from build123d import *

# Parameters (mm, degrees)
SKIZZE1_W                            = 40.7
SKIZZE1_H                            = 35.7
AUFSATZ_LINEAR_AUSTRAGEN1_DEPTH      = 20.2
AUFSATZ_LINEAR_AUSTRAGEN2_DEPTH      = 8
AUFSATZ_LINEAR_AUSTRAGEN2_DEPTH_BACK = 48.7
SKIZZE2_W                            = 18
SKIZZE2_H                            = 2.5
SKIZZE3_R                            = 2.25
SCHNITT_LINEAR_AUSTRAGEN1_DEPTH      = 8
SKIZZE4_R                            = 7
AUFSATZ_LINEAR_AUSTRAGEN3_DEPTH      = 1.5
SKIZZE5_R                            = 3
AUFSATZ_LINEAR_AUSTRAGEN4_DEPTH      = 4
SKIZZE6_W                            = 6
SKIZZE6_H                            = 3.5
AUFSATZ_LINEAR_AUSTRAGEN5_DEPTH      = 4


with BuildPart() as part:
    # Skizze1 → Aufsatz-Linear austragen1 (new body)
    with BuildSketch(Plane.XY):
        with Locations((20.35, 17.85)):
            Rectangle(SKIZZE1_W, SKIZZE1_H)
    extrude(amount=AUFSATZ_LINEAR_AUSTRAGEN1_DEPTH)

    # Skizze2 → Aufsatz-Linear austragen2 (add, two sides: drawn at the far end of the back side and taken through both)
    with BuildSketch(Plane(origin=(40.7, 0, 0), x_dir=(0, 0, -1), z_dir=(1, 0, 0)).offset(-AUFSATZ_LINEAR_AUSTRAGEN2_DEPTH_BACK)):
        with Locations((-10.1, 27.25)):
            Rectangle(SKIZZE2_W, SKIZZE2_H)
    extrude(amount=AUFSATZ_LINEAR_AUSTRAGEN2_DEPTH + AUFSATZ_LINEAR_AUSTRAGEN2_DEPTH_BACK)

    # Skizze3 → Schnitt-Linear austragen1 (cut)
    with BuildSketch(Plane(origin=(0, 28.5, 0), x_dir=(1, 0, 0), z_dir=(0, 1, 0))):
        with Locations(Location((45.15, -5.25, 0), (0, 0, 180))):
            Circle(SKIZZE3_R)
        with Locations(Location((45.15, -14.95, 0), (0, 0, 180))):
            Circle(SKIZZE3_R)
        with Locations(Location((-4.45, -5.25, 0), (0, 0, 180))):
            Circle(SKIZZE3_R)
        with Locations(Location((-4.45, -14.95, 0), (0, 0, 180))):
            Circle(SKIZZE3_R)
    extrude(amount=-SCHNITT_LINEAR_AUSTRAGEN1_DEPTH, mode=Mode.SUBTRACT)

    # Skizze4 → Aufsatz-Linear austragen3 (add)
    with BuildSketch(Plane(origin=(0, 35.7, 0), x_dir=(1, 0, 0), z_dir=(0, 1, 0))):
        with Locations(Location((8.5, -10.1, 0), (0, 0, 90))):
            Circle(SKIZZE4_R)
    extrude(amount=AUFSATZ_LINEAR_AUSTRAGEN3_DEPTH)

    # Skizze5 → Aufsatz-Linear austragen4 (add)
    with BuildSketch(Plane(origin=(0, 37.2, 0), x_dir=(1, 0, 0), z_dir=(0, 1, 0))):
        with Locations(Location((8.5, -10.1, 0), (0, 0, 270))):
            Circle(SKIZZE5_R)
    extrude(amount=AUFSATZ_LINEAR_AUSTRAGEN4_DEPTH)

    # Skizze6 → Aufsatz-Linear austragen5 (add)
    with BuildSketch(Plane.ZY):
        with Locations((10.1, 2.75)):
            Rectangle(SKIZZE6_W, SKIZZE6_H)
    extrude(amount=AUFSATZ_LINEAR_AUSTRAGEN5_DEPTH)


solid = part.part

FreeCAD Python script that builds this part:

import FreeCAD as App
import Part
import Sketcher


def add_polygon(sketch, points):
    """Adds a closed chain of lines whose ends are joined by coincident constraints."""
    first, n = sketch.GeometryCount, len(points)
    for a, b in zip(points, points[1:] + points[:1]):
        sketch.addGeometry(Part.LineSegment(App.Vector(*a, 0), App.Vector(*b, 0)), False)
    for i in range(n):
        sketch.addConstraint(Sketcher.Constraint("Coincident", first + i, 2, first + (i + 1) % n, 1))

doc = App.newDocument("Part")
params = doc.addObject("Spreadsheet::Sheet", "Params")
for row, (alias, value) in enumerate([
    ("sketch1_width", "40.7 mm"),
    ("sketch1_height", "35.7 mm"),
    ("pad1_length", "20.2 mm"),
    ("sketch2_height", "18 mm"),
    ("sketch2_width", "2.5 mm"),
    ("pad2_length", "8 mm"),
    ("pad2_length2", "48.7 mm"),
    ("sketch3_diameter", "4.5 mm"),
    ("pocket1_length", "8 mm"),
    ("sketch4_diameter", "14 mm"),
    ("pad3_length", "1.5 mm"),
    ("sketch5_diameter", "6 mm"),
    ("pad4_length", "4 mm"),
    ("sketch6_height", "6 mm"),
    ("sketch6_width", "3.5 mm"),
    ("pad5_length", "4 mm"),
], start=1):
    params.set(f"A{row}", alias)
    params.set(f"B{row}", "=" + value)
    params.setAlias(f"B{row}", alias)

body = doc.addObject("PartDesign::Body", "Body")

# Sketch on XY plane
sketch1 = body.newObject("Sketcher::SketchObject", "Sketch")
sketch1.AttachmentSupport = (doc.getObject("XY_Plane"), [""])
sketch1.MapMode = "FlatFace"
add_polygon(sketch1, [(0, 36), (0, 0), (41, 0), (41, 36)])  # lines 0-3
sketch1.addConstraint([
    Sketcher.Constraint("Vertical", 0),
    Sketcher.Constraint("Horizontal", 1),
    Sketcher.Constraint("Vertical", 2),
    Sketcher.Constraint("Horizontal", 3),
    Sketcher.Constraint("Coincident", 0, 2, -1, 1),
    Sketcher.Constraint("DistanceX", 1, 1, 1, 2, 40.7),
    Sketcher.Constraint("DistanceY", 0, 2, 0, 1, 35.7),
])
sketch1.setExpression("Constraints[9]", "Params.sketch1_width")
sketch1.setExpression("Constraints[10]", "Params.sketch1_height")
pad1 = body.newObject("PartDesign::Pad", "Pad")
pad1.Profile = sketch1
pad1.setExpression("Length", "Params.pad1_length")

# Sketch on YZ plane
sketch2 = body.newObject("Sketcher::SketchObject", "Sketch001")
sketch2.AttachmentSupport = (doc.getObject("YZ_Plane"), [""])
sketch2.MapMode = "FlatFace"
sketch2.AttachmentOffset = App.Placement(App.Vector(0, 0, 40.7), App.Rotation())
add_polygon(sketch2, [(28.5, 19.1), (26, 19.1), (26, 1.1), (28.5, 1.1)])  # lines 0-3
sketch2.addConstraint([
    Sketcher.Constraint("Horizontal", 0),
    Sketcher.Constraint("Vertical", 1),
    Sketcher.Constraint("Horizontal", 2),
    Sketcher.Constraint("Vertical", 3),
    Sketcher.Constraint("DistanceY", 1, 2, 1, 1, 18.0),
    Sketcher.Constraint("DistanceX", 0, 2, 0, 1, 2.5),
    Sketcher.Constraint("DistanceX", -1, 1, 0, 2, 26.0),
    Sketcher.Constraint("DistanceY", -1, 1, 0, 2, 19.1),
])
sketch2.setExpression("Constraints[8]", "Params.sketch2_height")
sketch2.setExpression("Constraints[9]", "Params.sketch2_width")
pad2 = body.newObject("PartDesign::Pad", "Pad001")
pad2.Profile = sketch2
pad2.Type = "TwoLengths"
pad2.setExpression("Length", "Params.pad2_length")
pad2.setExpression("Length2", "Params.pad2_length2")

# Sketch on XZ plane
sketch3 = body.newObject("Sketcher::SketchObject", "Sketch002")
sketch3.AttachmentSupport = (doc.getObject("XZ_Plane"), [""])
sketch3.MapMode = "FlatFace"
sketch3.AttachmentOffset = App.Placement(App.Vector(0, 0, -28.5), App.Rotation())
sketch3.addGeometry([
    Part.Circle(App.Vector(45.1, 5.2, 0), App.Vector(0, 0, 1), 2.2),
    Part.Circle(App.Vector(45.1, 14.9, 0), App.Vector(0, 0, 1), 2.2),
    Part.Circle(App.Vector(-4.5, 5.2, 0), App.Vector(0, 0, 1), 2.2),
    Part.Circle(App.Vector(-4.5, 14.9, 0), App.Vector(0, 0, 1), 2.2),
], False)
sketch3.addConstraint([
    Sketcher.Constraint("Equal", 0, 1),
    Sketcher.Constraint("Equal", 1, 2),
    Sketcher.Constraint("Equal", 2, 3),
    Sketcher.Constraint("Horizontal", 0, 3, 2, 3),
    Sketcher.Constraint("Horizontal", 1, 3, 3, 3),
    Sketcher.Constraint("Vertical", 0, 3, 1, 3),
    Sketcher.Constraint("Vertical", 2, 3, 3, 3),
    Sketcher.Constraint("Diameter", 0, 4.5),
    Sketcher.Constraint("DistanceY", 0, 3, 1, 3, 9.7),
    Sketcher.Constraint("DistanceX", 2, 3, 0, 3, 49.6),
    Sketcher.Constraint("DistanceX", -1, 1, 0, 3, 45.15),
    Sketcher.Constraint("DistanceY", -1, 1, 0, 3, 5.25),
])
sketch3.setExpression("Constraints[7]", "Params.sketch3_diameter")
pocket1 = body.newObject("PartDesign::Pocket", "Pocket")
pocket1.Profile = sketch3
pocket1.setExpression("Length", "Params.pocket1_length")
pocket1.Reversed = True

# Sketch on XZ plane
sketch4 = body.newObject("Sketcher::SketchObject", "Sketch003")
sketch4.AttachmentSupport = (doc.getObject("XZ_Plane"), [""])
sketch4.MapMode = "FlatFace"
sketch4.AttachmentOffset = App.Placement(App.Vector(0, 0, -35.7), App.Rotation())
sketch4.addGeometry(Part.Circle(App.Vector(8, 10, 0), App.Vector(0, 0, 1), 7), False)
sketch4.addConstraint([
    Sketcher.Constraint("Diameter", 0, 14.0),
    Sketcher.Constraint("DistanceX", -1, 1, 0, 3, 8.5),
    Sketcher.Constraint("DistanceY", -1, 1, 0, 3, 10.1),
])
sketch4.setExpression("Constraints[0]", "Params.sketch4_diameter")
pad3 = body.newObject("PartDesign::Pad", "Pad002")
pad3.Profile = sketch4
pad3.setExpression("Length", "Params.pad3_length")
pad3.Reversed = True

# Sketch on XZ plane
sketch5 = body.newObject("Sketcher::SketchObject", "Sketch004")
sketch5.AttachmentSupport = (doc.getObject("XZ_Plane"), [""])
sketch5.MapMode = "FlatFace"
sketch5.AttachmentOffset = App.Placement(App.Vector(0, 0, -37.2), App.Rotation())
sketch5.addGeometry(Part.Circle(App.Vector(8.5, 10.1, 0), App.Vector(0, 0, 1), 3), False)
sketch5.addConstraint([
    Sketcher.Constraint("Diameter", 0, 6.0),
    Sketcher.Constraint("DistanceX", -1, 1, 0, 3, 8.5),
    Sketcher.Constraint("DistanceY", -1, 1, 0, 3, 10.1),
])
sketch5.setExpression("Constraints[0]", "Params.sketch5_diameter")
pad4 = body.newObject("PartDesign::Pad", "Pad003")
pad4.Profile = sketch5
pad4.setExpression("Length", "Params.pad4_length")
pad4.Reversed = True

# Sketch on YZ plane
sketch6 = body.newObject("Sketcher::SketchObject", "Sketch005")
sketch6.AttachmentSupport = (doc.getObject("YZ_Plane"), [""])
sketch6.MapMode = "FlatFace"
add_polygon(sketch6, [(4.5, 7.1), (1, 7.1), (1, 13.1), (4.5, 13.1)])  # lines 0-3
sketch6.addConstraint([
    Sketcher.Constraint("Horizontal", 0),
    Sketcher.Constraint("Vertical", 1),
    Sketcher.Constraint("Horizontal", 2),
    Sketcher.Constraint("Vertical", 3),
    Sketcher.Constraint("DistanceY", 1, 1, 1, 2, 6.0),
    Sketcher.Constraint("DistanceX", 0, 2, 0, 1, 3.5),
    Sketcher.Constraint("DistanceX", -1, 1, 0, 2, 1.0),
    Sketcher.Constraint("DistanceY", -1, 1, 0, 2, 7.1),
])
sketch6.setExpression("Constraints[8]", "Params.sketch6_height")
sketch6.setExpression("Constraints[9]", "Params.sketch6_width")
pad5 = body.newObject("PartDesign::Pad", "Pad004")
pad5.Profile = sketch6
pad5.setExpression("Length", "Params.pad5_length")
pad5.Reversed = True

doc.recompute()
